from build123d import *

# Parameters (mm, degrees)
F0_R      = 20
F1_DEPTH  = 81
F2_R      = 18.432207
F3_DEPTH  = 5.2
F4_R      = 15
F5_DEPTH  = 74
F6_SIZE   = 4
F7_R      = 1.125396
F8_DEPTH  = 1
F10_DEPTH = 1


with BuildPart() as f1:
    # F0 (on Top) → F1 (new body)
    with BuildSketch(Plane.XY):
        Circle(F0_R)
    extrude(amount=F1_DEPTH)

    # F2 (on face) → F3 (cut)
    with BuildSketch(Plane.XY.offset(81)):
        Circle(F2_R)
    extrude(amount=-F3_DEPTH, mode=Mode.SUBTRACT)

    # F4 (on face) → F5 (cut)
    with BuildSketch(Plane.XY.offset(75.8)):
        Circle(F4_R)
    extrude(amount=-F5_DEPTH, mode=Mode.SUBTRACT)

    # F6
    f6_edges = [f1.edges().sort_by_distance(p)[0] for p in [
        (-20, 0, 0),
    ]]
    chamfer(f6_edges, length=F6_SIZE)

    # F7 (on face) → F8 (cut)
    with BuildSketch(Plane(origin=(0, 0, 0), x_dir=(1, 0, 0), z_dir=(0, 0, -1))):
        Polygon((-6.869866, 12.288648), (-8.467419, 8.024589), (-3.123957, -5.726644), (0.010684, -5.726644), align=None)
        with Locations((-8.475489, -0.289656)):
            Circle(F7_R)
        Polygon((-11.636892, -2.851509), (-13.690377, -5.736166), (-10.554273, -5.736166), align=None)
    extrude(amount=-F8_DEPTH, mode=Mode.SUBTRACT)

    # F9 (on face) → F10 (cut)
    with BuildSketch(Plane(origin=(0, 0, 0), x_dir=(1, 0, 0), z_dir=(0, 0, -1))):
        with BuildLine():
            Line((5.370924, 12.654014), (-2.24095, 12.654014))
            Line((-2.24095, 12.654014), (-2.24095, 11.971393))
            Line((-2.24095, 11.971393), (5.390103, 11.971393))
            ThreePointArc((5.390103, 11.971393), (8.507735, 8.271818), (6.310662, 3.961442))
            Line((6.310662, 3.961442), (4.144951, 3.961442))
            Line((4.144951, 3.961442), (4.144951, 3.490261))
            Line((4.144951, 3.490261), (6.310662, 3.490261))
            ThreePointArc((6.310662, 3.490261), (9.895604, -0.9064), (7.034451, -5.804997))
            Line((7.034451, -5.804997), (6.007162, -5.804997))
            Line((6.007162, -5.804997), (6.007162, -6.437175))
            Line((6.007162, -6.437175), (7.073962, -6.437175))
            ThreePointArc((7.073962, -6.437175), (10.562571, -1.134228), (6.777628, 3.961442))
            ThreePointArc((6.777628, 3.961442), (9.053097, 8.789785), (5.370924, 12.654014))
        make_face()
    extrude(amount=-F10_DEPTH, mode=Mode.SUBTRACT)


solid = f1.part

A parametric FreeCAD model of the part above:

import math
import FreeCAD as App
import Part
import Sketcher

V = App.Vector
Q = App.Units.Quantity


def edges_at(feature, points):
    """Names of the edges that pass closest to the given points."""
    edges = feature.Shape.Edges
    near = lambda p: min(range(len(edges)), key=lambda i: edges[i].distToShape(Part.Vertex(*p))[0])
    return sorted({f"Edge{near(p) + 1}" for p in points})

doc = App.newDocument("Part")
body = doc.addObject("PartDesign::Body", "Body")

sketch1 = body.newObject("Sketcher::SketchObject", "Sketch")
sketch1.AttachmentSupport = (doc.getObject("XY_Plane"), [""])
sketch1.MapMode = "FlatFace"
sketch1.addGeometry(Part.Circle(V(0, 0, 0), V(0, 0, 1), 20), False)
sketch1.addConstraint(Sketcher.Constraint("Coincident", 0, 3, -1, 1))
sketch1.addConstraint(Sketcher.Constraint("Diameter", 0, Q("40 mm")))
pad1 = body.newObject("PartDesign::Pad", "Pad")
pad1.Profile = sketch1
pad1.Length = 81

sketch2 = body.newObject("Sketcher::SketchObject", "Sketch001")
sketch2.AttachmentSupport = (doc.getObject("XY_Plane"), [""])
sketch2.MapMode = "FlatFace"
sketch2.AttachmentOffset = App.Placement(V(0, 0, 81), App.Rotation())
sketch2.addGeometry(Part.Circle(V(0, 0, 0), V(0, 0, 1), 18.432207), False)
sketch2.addConstraint(Sketcher.Constraint("Coincident", 0, 3, -1, 1))
sketch2.addConstraint(Sketcher.Constraint("Diameter", 0, Q("36.864414 mm")))
pocket1 = body.newObject("PartDesign::Pocket", "Pocket")
pocket1.Profile = sketch2
pocket1.Length = 5.2

sketch3 = body.newObject("Sketcher::SketchObject", "Sketch002")
sketch3.AttachmentSupport = (doc.getObject("XY_Plane"), [""])
sketch3.MapMode = "FlatFace"
sketch3.AttachmentOffset = App.Placement(V(0, 0, 75.8), App.Rotation())
sketch3.addGeometry(Part.Circle(V(0, 0, 0), V(0, 0, 1), 15), False)
sketch3.addConstraint(Sketcher.Constraint("Coincident", 0, 3, -1, 1))
sketch3.addConstraint(Sketcher.Constraint("Diameter", 0, Q("30 mm")))
pocket2 = body.newObject("PartDesign::Pocket", "Pocket001")
pocket2.Profile = sketch3
pocket2.Length = 74
doc.recompute()

chamfer = body.newObject("PartDesign::Chamfer", "Chamfer")
chamfer.Base = (pocket2, edges_at(pocket2, [(-20, 0, 0)]))
chamfer.Size = 4

sketch4 = body.newObject("Sketcher::SketchObject", "Sketch003")
sketch4.AttachmentSupport = (doc.getObject("XY_Plane"), [""])
sketch4.MapMode = "FlatFace"
sketch4.addGeometry(Part.LineSegment(V(-6.869866, -12.288648, 0), V(-8.467419, -8.024589, 0)), False)
sketch4.addGeometry(Part.LineSegment(V(-8.467419, -8.024589, 0), V(-3.123957, 5.726644, 0)), False)
sketch4.addGeometry(Part.LineSegment(V(-3.123957, 5.726644, 0), V(0.010684, 5.726644, 0)), False)
sketch4.addGeometry(Part.LineSegment(V(0.010684, 5.726644, 0), V(-6.869866, -12.288648, 0)), False)
sketch4.addGeometry(Part.Circle(V(-8.475489, 0.289656, 0), V(0, 0, 1), 1.125396), False)
sketch4.addGeometry(Part.LineSegment(V(-11.636892, 2.851509, 0), V(-13.690377, 5.736166, 0)), False)
sketch4.addGeometry(Part.LineSegment(V(-13.690377, 5.736166, 0), V(-10.554273, 5.736166, 0)), False)
sketch4.addGeometry(Part.LineSegment(V(-10.554273, 5.736166, 0), V(-11.636892, 2.851509, 0)), False)
sketch4.addConstraint(Sketcher.Constraint("Coincident", 0, 2, 1, 1))
sketch4.addConstraint(Sketcher.Constraint("Coincident", 1, 2, 2, 1))
sketch4.addConstraint(Sketcher.Constraint("Coincident", 2, 2, 3, 1))
sketch4.addConstraint(Sketcher.Constraint("Coincident", 3, 2, 0, 1))
sketch4.addConstraint(Sketcher.Constraint("Coincident", 5, 2, 6, 1))
sketch4.addConstraint(Sketcher.Constraint("Coincident", 6, 2, 7, 1))
sketch4.addConstraint(Sketcher.Constraint("Coincident", 7, 2, 5, 1))
sketch4.addConstraint(Sketcher.Constraint("Horizontal", 2))
sketch4.addConstraint(Sketcher.Constraint("Horizontal", 6))
sketch4.addConstraint(Sketcher.Constraint("Diameter", 4, Q("2.250792 mm")))
sketch4.addConstraint(Sketcher.Constraint("Distance", 0, Q("4.553501 mm")))
sketch4.addConstraint(Sketcher.Constraint("DistanceX", 2, 1, 2, 2, Q("3.134641 mm")))
sketch4.addConstraint(Sketcher.Constraint("DistanceY", 0, 2, 7, 2, Q("10.876098 mm")))
sketch4.addConstraint(Sketcher.Constraint("Distance", 1, Q("14.752932 mm")))
sketch4.addConstraint(Sketcher.Constraint("Distance", 3, Q("19.28452 mm")))
sketch4.addConstraint(Sketcher.Constraint("Distance", 5, Q("3.54091 mm")))
sketch4.addConstraint(Sketcher.Constraint("Distance", 7, Q("3.081122 mm")))
sketch4.addConstraint(Sketcher.Constraint("DistanceX", 6, 1, 6, 2, Q("3.136104 mm")))
sketch4.addConstraint(Sketcher.Constraint("DistanceX", 4, 3, -1, 1, Q("8.475489 mm")))
sketch4.addConstraint(Sketcher.Constraint("DistanceX", 0, 2, -1, 1, Q("8.467419 mm")))
sketch4.addConstraint(Sketcher.Constraint("DistanceY", 0, 2, -1, 1, Q("8.024589 mm")))
sketch4.addConstraint(Sketcher.Constraint("DistanceX", 4, 3, 1, 2, Q("5.351532 mm")))
sketch4.addConstraint(Sketcher.Constraint("DistanceY", 4, 3, 1, 2, Q("5.436988 mm")))
sketch4.addConstraint(Sketcher.Constraint("DistanceX", 5, 2, 4, 3, Q("5.214888 mm")))
pocket3 = body.newObject("PartDesign::Pocket", "Pocket002")
pocket3.Profile = sketch4
pocket3.Length = 1
pocket3.Reversed = True

sketch5 = body.newObject("Sketcher::SketchObject", "Sketch004")
sketch5.AttachmentSupport = (doc.getObject("XY_Plane"), [""])
sketch5.MapMode = "FlatFace"
sketch5.addGeometry(Part.LineSegment(V(5.370924, -12.654014, 0), V(-2.24095, -12.654014, 0)), False)
sketch5.addGeometry(Part.LineSegment(V(-2.24095, -12.654014, 0), V(-2.24095, -11.971393, 0)), False)
sketch5.addGeometry(Part.LineSegment(V(-2.24095, -11.971393, 0), V(5.390103, -11.971393, 0)), False)
sketch5.addGeometry(Part.ArcOfCircle(Part.Circle(V(4.161049, -7.772268, 0), V(0, 0, 1), 4.375297), math.radians(-73.685628), math.radians(60.5735)), False)
sketch5.addGeometry(Part.LineSegment(V(6.310662, -3.961442, 0), V(4.144951, -3.961442, 0)), False)
sketch5.addGeometry(Part.LineSegment(V(4.144951, -3.961442, 0), V(4.144951, -3.490261, 0)), False)
sketch5.addGeometry(Part.LineSegment(V(4.144951, -3.490261, 0), V(6.310662, -3.490261, 0)), False)
sketch5.addGeometry(Part.ArcOfCircle(Part.Circle(V(4.933144, 1.29281, 0), V(0, 0, 1), 4.977482), math.radians(-73.933668), math.radians(65.028795)), False)
sketch5.addGeometry(Part.LineSegment(V(7.034451, 5.804997, 0), V(6.007162, 5.804997, 0)), False)
sketch5.addGeometry(Part.LineSegment(V(6.007162, 5.804997, 0), V(6.007162, 6.437175, 0)), False)
sketch5.addGeometry(Part.LineSegment(V(6.007162, 6.437175, 0), V(7.073962, 6.437175, 0)), False)
sketch5.addGeometry(Part.ArcOfCircle(Part.Circle(V(5.027593, 1.29196, 0), V(0, 0, 1), 5.537225), math.radians(-71.575843), math.radians(68.31116)), False)
sketch5.addGeometry(Part.ArcOfCircle(Part.Circle(V(4.392935, -8.035639, 0), V(0, 0, 1), 4.720789), math.radians(-78.043649), math.radians(59.658877)), False)
sketch5.addConstraint(Sketcher.Constraint("Coincident", 0, 2, 1, 1))
sketch5.addConstraint(Sketcher.Constraint("Coincident", 1, 2, 2, 1))
sketch5.addConstraint(Sketcher.Constraint("Coincident", 2, 2, 3, 1))
sketch5.addConstraint(Sketcher.Constraint("Coincident", 3, 2, 4, 1))
sketch5.addConstraint(Sketcher.Constraint("Coincident", 4, 2, 5, 1))
sketch5.addConstraint(Sketcher.Constraint("Coincident", 5, 2, 6, 1))
sketch5.addConstraint(Sketcher.Constraint("Coincident", 6, 2, 7, 1))
sketch5.addConstraint(Sketcher.Constraint("Coincident", 7, 2, 8, 1))
sketch5.addConstraint(Sketcher.Constraint("Coincident", 8, 2, 9, 1))
sketch5.addConstraint(Sketcher.Constraint("Coincident", 9, 2, 10, 1))
sketch5.addConstraint(Sketcher.Constraint("Coincident", 10, 2, 11, 2))
sketch5.addConstraint(Sketcher.Constraint("Coincident", 11, 1, 12, 2))
sketch5.addConstraint(Sketcher.Constraint("Coincident", 12, 1, 0, 1))
sketch5.addConstraint(Sketcher.Constraint("Horizontal", 0))
sketch5.addConstraint(Sketcher.Constraint("Vertical", 1))
sketch5.addConstraint(Sketcher.Constraint("Horizontal", 2))
sketch5.addConstraint(Sketcher.Constraint("Horizontal", 4))
sketch5.addConstraint(Sketcher.Constraint("Vertical", 5))
sketch5.addConstraint(Sketcher.Constraint("Horizontal", 6))
sketch5.addConstraint(Sketcher.Constraint("Horizontal", 8))
sketch5.addConstraint(Sketcher.Constraint("Vertical", 9))
sketch5.addConstraint(Sketcher.Constraint("Horizontal", 10))
sketch5.addConstraint(Sketcher.Constraint("Horizontal", 4, 2, 11, 1))
sketch5.addConstraint(Sketcher.Constraint("Vertical", 3, 2, 6, 2))
sketch5.addConstraint(Sketcher.Constraint("Radius", 7, Q("4.977482 mm")))
sketch5.addConstraint(Sketcher.Constraint("Radius", 12, Q("4.720789 mm")))
sketch5.addConstraint(Sketcher.Constraint("DistanceX", 10, 1, 10, 2, Q("1.0668 mm")))
sketch5.addConstraint(Sketcher.Constraint("Radius", 3, Q("4.375297 mm")))
sketch5.addConstraint(Sketcher.Constraint("Radius", 11, Q("5.537225 mm")))
sketch5.addConstraint(Sketcher.Constraint("DistanceX", 0, 2, 3, 3, Q("6.401999 mm")))
sketch5.addConstraint(Sketcher.Constraint("DistanceX", 4, 2, 4, 1, Q("2.165711 mm")))
sketch5.addConstraint(Sketcher.Constraint("DistanceX", 8, 2, 8, 1, Q("1.027289 mm")))
sketch5.addConstraint(Sketcher.Constraint("DistanceY", 1, 1, 1, 2, Q("0.682621 mm")))
sketch5.addConstraint(Sketcher.Constraint("DistanceY", 5, 1, 5, 2, Q("0.471181 mm")))
sketch5.addConstraint(Sketcher.Constraint("DistanceY", 12, 3, 11, 3, Q("9.3276 mm")))
sketch5.addConstraint(Sketcher.Constraint("DistanceX", 4, 2, 3, 3, Q("0.016098 mm")))
sketch5.addConstraint(Sketcher.Constraint("DistanceX", 5, 2, 7, 2, Q("2.8895 mm")))
sketch5.addConstraint(Sketcher.Constraint("DistanceX", 0, 2, 0, 1, Q("7.611874 mm")))
sketch5.addConstraint(Sketcher.Constraint("DistanceX", 2, 1, 2, 2, Q("7.631053 mm")))
sketch5.addConstraint(Sketcher.Constraint("DistanceY", 9, 1, 9, 2, Q("0.632178 mm")))
sketch5.addConstraint(Sketcher.Constraint("DistanceX", -1, 1, 3, 3, Q("4.161049 mm")))
sketch5.addConstraint(Sketcher.Constraint("DistanceY", -1, 1, 7, 3, Q("1.29281 mm")))
sketch5.addConstraint(Sketcher.Constraint("DistanceY", -1, 1, 11, 3, Q("1.29196 mm")))
pocket4 = body.newObject("PartDesign::Pocket", "Pocket003")
pocket4.Profile = sketch5
pocket4.Length = 1
pocket4.Reversed = True

doc.recompute()
